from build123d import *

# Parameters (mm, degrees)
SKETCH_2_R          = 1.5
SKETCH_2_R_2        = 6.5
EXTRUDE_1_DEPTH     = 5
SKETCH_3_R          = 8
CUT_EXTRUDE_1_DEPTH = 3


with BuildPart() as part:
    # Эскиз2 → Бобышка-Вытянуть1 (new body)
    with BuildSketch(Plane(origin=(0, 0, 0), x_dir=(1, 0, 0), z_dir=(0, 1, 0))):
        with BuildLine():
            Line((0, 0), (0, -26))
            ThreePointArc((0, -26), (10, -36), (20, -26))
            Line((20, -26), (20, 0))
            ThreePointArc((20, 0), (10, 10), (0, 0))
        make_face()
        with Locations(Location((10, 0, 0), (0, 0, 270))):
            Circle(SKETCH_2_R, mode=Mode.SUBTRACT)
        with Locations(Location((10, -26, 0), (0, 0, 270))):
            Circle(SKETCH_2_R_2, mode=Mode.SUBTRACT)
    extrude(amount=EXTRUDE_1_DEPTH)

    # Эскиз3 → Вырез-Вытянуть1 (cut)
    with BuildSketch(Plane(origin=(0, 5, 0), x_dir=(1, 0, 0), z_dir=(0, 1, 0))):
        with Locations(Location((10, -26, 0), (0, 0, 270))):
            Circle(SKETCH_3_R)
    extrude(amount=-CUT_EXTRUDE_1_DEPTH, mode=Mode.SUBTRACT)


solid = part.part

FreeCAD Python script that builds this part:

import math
import FreeCAD as App
import Part
import Sketcher
from FreeCAD import Vector

doc = App.newDocument("Part")
body = doc.addObject("PartDesign::Body", "Body")

sketch1 = body.newObject("Sketcher::SketchObject", "Sketch")
sketch1.AttachmentSupport = (doc.getObject("XZ_Plane"), [""])
sketch1.MapMode = "FlatFace"
sketch1.addGeometry([
    Part.LineSegment(Vector(0, 0, 0), Vector(0, 26, 0)),
    Part.ArcOfCircle(Part.Circle(Vector(10, 26, 0), Vector(0, 0, 1), 10), math.radians(0), math.radians(180)),
    Part.LineSegment(Vector(20, 26, 0), Vector(20, 0, 0)),
    Part.ArcOfCircle(Part.Circle(Vector(10, 0, 0), Vector(0, 0, 1), 10), math.radians(180), math.radians(360)),
    Part.Circle(Vector(10, 26, 0), Vector(0, 0, 1), 6.5),
    Part.Circle(Vector(10, 0, 0), Vector(0, 0, 1), 1.5),
], False)
sketch1.addConstraint([
    Sketcher.Constraint("Tangent", 0, 2, 1, 2),
    Sketcher.Constraint("Tangent", 1, 1, 2, 1),
    Sketcher.Constraint("Tangent", 2, 2, 3, 2),
    Sketcher.Constraint("Tangent", 3, 1, 0, 1),
    Sketcher.Constraint("Vertical", 0),
    Sketcher.Constraint("Vertical", 2),
    Sketcher.Constraint("Coincident", 3, 1, -1, 1),
    Sketcher.Constraint("Coincident", 4, 3, 1, 3),
    Sketcher.Constraint("Coincident", 5, 3, 3, 3),
    Sketcher.Constraint("Diameter", 4, 13.0),
    Sketcher.Constraint("Diameter", 5, 3.0),
    Sketcher.Constraint("Radius", 1, 10.0),
    Sketcher.Constraint("DistanceY", 0, 1, 0, 2, 26.0),
])
pad1 = body.newObject("PartDesign::Pad", "Pad")
pad1.Profile = sketch1
pad1.Length = 5
pad1.Reversed = True

sketch2 = body.newObject("Sketcher::SketchObject", "Sketch001")
sketch2.AttachmentSupport = (doc.getObject("XZ_Plane"), [""])
sketch2.MapMode = "FlatFace"
sketch2.AttachmentOffset = App.Placement(Vector(0, 0, -5), App.Rotation())
sketch2.addGeometry(Part.Circle(Vector(10, 26, 0), Vector(0, 0, 1), 8), False)
sketch2.addConstraint([
    Sketcher.Constraint("Diameter", 0, 16.0),
    Sketcher.Constraint("DistanceX", -1, 1, 0, 3, 10.0),
    Sketcher.Constraint("DistanceY", -1, 1, 0, 3, 26.0),
])
pocket1 = body.newObject("PartDesign::Pocket", "Pocket")
pocket1.Profile = sketch2
pocket1.Length = 3
pocket1.Reversed = True

doc.recompute()
